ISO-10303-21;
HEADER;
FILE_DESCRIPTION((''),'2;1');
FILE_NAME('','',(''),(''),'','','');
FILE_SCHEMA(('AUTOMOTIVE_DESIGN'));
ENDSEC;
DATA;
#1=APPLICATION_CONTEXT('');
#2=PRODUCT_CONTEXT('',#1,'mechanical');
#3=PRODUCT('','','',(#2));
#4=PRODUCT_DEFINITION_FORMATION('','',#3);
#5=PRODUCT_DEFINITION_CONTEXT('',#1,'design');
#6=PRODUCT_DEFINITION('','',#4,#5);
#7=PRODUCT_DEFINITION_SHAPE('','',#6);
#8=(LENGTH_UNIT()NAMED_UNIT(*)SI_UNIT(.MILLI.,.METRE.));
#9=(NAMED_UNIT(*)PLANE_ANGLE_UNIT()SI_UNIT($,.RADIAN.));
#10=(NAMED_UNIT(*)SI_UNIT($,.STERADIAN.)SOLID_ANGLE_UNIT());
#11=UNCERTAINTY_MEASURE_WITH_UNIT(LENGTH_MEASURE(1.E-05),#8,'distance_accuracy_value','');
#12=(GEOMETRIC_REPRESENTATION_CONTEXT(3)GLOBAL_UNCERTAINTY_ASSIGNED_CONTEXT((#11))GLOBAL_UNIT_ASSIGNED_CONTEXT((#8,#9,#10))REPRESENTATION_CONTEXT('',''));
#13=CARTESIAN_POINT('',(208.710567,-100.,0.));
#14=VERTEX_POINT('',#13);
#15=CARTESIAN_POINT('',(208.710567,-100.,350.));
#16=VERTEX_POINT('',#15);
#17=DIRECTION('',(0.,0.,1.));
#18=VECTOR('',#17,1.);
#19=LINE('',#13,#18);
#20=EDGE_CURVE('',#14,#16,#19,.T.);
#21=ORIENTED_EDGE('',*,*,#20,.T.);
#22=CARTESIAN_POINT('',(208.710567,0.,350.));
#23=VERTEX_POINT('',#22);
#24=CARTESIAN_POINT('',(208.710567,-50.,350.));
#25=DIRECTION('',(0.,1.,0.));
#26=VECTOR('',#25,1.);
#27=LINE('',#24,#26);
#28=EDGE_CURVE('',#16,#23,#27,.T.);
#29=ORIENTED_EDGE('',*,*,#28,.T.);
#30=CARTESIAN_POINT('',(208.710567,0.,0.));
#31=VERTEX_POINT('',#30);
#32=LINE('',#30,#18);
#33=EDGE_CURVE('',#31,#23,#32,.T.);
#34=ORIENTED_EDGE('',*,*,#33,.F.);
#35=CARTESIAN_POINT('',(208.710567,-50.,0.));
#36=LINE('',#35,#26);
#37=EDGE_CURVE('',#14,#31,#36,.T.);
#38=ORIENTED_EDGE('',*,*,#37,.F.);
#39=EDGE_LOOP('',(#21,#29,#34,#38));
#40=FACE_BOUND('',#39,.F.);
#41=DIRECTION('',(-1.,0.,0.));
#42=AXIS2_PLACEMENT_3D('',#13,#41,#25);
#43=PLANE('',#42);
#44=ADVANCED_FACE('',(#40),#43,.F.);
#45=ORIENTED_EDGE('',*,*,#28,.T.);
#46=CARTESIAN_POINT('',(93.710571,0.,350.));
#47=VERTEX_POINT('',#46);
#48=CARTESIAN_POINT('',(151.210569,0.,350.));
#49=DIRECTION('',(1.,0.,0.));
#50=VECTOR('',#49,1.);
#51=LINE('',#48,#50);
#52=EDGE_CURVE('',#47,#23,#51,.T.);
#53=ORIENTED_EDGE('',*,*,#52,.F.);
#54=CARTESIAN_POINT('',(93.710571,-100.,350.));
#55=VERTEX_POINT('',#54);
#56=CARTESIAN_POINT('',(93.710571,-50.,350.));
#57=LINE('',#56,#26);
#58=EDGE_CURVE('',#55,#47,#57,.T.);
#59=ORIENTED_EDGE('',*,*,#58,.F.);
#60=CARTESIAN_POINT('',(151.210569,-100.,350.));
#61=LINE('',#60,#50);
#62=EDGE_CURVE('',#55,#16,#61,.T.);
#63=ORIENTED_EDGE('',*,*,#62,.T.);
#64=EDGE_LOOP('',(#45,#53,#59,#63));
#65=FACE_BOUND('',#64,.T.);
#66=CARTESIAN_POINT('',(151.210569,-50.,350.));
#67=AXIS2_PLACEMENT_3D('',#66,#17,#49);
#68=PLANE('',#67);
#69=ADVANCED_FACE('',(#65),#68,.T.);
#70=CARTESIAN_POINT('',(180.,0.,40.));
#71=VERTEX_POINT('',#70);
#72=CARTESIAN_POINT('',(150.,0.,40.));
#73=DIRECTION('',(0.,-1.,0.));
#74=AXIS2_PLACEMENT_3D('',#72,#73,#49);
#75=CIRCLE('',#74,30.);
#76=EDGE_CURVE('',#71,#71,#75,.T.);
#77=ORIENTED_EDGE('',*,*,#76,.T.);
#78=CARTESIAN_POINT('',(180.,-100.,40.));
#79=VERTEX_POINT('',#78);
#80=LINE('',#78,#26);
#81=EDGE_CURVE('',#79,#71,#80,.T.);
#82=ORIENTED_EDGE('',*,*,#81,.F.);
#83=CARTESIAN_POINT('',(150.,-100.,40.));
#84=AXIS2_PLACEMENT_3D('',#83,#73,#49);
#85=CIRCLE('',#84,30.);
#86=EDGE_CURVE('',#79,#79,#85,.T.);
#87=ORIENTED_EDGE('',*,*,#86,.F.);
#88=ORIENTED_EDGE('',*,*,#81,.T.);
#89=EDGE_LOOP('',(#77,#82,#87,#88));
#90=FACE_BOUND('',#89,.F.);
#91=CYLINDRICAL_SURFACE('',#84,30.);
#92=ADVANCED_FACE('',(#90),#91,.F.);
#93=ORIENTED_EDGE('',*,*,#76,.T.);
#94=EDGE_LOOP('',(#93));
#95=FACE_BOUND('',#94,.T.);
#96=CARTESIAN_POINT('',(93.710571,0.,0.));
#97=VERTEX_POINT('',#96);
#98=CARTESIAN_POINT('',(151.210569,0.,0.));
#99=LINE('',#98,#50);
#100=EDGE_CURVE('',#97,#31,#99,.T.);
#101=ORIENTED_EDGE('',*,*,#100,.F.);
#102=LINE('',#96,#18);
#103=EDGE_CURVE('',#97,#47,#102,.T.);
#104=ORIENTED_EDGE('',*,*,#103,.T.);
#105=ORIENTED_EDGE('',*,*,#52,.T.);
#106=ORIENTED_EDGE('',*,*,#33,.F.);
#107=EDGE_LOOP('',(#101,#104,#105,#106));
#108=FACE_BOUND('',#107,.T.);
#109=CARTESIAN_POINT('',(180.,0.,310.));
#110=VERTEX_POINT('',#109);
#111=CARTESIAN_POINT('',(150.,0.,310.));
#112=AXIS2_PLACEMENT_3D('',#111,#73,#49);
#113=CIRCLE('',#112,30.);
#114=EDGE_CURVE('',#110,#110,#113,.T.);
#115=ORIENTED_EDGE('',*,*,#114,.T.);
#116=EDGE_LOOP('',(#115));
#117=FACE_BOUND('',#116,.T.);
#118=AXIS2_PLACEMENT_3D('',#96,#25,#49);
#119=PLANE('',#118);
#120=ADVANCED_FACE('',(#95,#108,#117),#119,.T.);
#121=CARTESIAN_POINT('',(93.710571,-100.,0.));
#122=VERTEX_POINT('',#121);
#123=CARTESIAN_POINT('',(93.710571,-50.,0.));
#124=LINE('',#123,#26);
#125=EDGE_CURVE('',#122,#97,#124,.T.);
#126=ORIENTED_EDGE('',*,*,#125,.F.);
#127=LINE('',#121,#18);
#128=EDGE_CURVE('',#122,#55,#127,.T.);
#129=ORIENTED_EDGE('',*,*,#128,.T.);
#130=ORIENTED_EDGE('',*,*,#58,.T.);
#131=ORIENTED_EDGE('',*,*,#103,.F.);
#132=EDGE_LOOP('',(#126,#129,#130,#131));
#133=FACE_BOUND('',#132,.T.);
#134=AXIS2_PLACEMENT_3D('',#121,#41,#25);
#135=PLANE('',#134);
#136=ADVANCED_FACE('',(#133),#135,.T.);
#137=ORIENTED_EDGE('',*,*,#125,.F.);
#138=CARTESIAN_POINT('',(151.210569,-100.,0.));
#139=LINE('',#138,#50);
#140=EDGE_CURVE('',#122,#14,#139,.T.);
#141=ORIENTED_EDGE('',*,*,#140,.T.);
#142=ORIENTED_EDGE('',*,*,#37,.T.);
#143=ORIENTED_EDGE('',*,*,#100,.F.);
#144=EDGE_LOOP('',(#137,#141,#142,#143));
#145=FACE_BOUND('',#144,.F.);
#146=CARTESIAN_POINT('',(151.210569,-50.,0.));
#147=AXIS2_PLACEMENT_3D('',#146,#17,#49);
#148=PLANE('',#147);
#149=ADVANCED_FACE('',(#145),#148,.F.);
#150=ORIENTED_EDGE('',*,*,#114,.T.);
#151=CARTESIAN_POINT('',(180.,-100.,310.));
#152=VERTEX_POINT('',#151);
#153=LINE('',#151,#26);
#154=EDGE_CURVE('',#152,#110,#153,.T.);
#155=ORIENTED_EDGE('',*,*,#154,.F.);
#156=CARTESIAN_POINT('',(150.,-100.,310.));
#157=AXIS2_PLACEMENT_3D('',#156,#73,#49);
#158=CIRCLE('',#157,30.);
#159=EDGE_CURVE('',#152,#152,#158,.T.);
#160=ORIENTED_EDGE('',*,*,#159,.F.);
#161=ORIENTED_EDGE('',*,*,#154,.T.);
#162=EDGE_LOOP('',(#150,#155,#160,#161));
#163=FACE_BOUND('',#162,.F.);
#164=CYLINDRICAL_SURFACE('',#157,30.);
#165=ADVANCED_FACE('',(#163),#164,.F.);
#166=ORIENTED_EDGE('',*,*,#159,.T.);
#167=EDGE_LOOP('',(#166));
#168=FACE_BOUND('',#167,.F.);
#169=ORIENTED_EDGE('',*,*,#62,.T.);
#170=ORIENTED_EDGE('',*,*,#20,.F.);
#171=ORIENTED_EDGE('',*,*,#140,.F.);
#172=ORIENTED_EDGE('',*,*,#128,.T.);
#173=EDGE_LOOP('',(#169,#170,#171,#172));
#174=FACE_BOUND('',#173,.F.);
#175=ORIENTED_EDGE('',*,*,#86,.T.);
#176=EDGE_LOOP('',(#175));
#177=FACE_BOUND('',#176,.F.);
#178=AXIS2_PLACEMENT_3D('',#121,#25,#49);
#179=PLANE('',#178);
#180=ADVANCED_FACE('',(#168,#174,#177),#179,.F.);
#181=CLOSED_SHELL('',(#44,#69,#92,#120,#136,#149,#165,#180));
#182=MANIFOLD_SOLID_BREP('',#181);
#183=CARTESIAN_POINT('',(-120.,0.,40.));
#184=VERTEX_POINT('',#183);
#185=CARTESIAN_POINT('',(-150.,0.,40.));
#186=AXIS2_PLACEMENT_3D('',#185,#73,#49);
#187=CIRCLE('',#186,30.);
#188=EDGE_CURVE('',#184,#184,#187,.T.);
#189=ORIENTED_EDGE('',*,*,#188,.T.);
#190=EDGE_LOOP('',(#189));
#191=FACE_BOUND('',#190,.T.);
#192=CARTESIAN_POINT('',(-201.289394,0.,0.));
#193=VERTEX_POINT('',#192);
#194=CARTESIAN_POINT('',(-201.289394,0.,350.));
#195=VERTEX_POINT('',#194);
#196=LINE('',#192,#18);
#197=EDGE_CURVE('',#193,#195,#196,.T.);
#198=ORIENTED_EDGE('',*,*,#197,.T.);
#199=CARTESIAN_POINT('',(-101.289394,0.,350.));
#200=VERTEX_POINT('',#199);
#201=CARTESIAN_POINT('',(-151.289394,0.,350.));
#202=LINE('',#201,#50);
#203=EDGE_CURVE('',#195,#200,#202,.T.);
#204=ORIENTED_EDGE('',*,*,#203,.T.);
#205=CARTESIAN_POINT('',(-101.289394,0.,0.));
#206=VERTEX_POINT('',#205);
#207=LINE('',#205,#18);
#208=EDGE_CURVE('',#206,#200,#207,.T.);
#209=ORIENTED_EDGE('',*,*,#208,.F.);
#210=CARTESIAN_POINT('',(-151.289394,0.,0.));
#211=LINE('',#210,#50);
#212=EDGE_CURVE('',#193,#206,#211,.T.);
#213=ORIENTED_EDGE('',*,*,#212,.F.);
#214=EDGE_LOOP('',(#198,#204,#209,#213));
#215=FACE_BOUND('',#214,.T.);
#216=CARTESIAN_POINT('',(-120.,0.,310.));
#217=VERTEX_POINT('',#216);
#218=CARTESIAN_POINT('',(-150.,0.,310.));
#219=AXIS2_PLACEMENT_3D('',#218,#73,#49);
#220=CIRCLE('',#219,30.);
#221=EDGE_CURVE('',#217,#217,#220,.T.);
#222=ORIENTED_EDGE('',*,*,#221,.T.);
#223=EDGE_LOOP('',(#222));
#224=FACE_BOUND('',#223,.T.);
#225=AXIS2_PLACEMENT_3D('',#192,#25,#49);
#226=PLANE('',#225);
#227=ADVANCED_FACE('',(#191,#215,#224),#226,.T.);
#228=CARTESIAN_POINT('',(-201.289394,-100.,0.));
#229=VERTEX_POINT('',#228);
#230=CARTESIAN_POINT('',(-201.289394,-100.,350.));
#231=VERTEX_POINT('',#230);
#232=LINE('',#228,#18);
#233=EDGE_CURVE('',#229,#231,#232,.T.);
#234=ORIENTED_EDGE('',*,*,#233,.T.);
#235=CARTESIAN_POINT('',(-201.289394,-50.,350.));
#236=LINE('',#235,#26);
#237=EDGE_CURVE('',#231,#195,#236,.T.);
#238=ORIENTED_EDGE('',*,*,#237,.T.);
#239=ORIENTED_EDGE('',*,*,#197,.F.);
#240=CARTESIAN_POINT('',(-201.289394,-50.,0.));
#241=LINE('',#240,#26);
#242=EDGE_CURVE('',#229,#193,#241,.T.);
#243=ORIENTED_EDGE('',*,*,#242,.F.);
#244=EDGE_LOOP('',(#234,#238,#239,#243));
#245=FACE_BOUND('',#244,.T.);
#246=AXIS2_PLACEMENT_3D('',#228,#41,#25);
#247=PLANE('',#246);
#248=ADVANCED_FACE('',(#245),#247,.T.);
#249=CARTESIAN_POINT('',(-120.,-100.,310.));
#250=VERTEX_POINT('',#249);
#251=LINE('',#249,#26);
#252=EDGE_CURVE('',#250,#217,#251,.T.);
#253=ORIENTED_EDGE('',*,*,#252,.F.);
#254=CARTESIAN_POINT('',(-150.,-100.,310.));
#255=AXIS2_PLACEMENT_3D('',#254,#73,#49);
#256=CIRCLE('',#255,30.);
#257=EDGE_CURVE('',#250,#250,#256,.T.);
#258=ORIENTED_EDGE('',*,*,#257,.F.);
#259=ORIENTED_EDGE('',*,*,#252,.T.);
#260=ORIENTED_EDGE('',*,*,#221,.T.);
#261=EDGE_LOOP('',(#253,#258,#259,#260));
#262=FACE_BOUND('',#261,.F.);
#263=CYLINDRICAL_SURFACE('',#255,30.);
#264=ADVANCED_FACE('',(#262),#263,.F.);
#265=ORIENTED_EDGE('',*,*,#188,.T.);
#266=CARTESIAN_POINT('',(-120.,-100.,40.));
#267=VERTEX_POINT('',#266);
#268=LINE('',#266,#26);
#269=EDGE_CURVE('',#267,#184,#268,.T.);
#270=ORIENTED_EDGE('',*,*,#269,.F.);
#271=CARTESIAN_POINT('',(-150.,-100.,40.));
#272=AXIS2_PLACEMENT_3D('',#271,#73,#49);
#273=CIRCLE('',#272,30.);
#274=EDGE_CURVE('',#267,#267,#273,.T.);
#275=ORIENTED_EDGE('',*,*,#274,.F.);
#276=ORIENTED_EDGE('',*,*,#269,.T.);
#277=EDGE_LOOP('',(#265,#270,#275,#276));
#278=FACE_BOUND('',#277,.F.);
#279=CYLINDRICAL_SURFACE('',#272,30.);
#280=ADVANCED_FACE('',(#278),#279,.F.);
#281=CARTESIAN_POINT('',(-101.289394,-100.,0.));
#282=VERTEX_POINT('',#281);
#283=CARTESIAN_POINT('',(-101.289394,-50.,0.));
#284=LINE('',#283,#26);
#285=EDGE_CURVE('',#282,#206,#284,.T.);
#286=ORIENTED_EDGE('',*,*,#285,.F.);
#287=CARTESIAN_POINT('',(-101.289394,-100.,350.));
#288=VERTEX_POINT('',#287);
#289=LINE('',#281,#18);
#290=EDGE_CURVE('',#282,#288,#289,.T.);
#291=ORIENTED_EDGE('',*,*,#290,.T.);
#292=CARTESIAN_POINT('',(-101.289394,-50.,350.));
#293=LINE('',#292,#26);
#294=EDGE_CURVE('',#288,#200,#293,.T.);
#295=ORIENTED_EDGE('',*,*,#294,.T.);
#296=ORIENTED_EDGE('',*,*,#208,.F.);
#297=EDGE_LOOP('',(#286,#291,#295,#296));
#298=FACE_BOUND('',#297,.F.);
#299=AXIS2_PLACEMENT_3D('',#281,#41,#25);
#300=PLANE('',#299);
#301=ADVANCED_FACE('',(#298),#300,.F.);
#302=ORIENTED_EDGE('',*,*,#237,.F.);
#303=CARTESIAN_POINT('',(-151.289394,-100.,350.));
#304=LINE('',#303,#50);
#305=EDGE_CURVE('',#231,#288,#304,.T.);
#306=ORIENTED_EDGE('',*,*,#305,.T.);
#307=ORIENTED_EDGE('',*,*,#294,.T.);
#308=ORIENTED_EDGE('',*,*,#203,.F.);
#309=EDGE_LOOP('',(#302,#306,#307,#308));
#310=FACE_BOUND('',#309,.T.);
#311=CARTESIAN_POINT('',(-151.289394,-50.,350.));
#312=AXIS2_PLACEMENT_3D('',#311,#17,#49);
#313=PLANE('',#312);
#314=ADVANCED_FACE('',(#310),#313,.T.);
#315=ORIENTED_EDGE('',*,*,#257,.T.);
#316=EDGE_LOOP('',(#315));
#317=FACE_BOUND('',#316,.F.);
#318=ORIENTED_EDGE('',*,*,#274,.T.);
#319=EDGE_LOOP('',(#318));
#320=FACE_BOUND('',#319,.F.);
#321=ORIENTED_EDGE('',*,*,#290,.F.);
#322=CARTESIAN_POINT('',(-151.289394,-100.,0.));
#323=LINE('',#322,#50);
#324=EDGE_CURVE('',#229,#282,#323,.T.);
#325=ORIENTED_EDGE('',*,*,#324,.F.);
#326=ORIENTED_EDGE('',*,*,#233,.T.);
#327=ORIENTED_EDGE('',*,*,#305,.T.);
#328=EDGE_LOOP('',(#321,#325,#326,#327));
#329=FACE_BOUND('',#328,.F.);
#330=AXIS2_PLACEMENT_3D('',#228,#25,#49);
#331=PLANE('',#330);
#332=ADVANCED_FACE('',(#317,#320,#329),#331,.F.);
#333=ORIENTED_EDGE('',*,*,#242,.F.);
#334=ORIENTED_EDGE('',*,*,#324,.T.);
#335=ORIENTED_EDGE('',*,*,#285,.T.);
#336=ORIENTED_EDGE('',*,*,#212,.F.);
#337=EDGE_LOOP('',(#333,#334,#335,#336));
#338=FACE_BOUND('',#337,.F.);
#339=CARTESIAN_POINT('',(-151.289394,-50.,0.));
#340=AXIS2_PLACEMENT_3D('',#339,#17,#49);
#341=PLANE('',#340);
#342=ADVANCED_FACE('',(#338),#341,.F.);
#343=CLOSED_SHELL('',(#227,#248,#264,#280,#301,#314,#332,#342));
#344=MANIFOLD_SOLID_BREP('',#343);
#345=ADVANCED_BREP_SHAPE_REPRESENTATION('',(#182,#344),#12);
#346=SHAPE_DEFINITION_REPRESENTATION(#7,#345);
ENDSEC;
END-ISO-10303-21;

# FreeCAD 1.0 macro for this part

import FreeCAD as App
import Part
import Sketcher

V = App.Vector


def add_polygon(sketch, points):
    """Adds a closed chain of lines whose ends are joined by coincident constraints."""
    first, n = sketch.GeometryCount, len(points)
    for a, b in zip(points, points[1:] + points[:1]):
        sketch.addGeometry(Part.LineSegment(App.Vector(*a, 0), App.Vector(*b, 0)), False)
    for i in range(n):
        sketch.addConstraint(Sketcher.Constraint("Coincident", first + i, 2, first + (i + 1) % n, 1))

doc = App.newDocument("Part")
body = doc.addObject("PartDesign::Body", "Body")
body.AllowCompound = True

sketch1 = body.newObject("Sketcher::SketchObject", "Sketch")
sketch1.AttachmentSupport = (doc.getObject("XY_Plane"), [""])
sketch1.MapMode = "FlatFace"
add_polygon(sketch1, [(-201, 0), (-201, -100), (-101, -100), (-101, 0)])
add_polygon(sketch1, [(94, 0), (94, -100), (209, -100), (209, 0)])
sketch1.addConstraint([
    Sketcher.Constraint("Vertical", 0),
    Sketcher.Constraint("Horizontal", 1),
    Sketcher.Constraint("Vertical", 2),
    Sketcher.Constraint("Horizontal", 3),
    Sketcher.Constraint("Vertical", 4),
    Sketcher.Constraint("Horizontal", 5),
    Sketcher.Constraint("Vertical", 6),
    Sketcher.Constraint("Horizontal", 7),
    Sketcher.Constraint("PointOnObject", 2, 2, -1),
    Sketcher.Constraint("PointOnObject", 6, 2, -1),
    Sketcher.Constraint("Horizontal", 1, 2, 4, 2),
    Sketcher.Constraint("Equal", 3, 0),
    Sketcher.Constraint("DistanceX", 1, 1, 1, 2, 100.0),
    Sketcher.Constraint("DistanceX", 5, 1, 5, 2, 114.999997),
    Sketcher.Constraint("DistanceX", -1, 1, 4, 2, 93.710571),
    Sketcher.Constraint("DistanceX", 1, 2, 5, 2, 309.999961),
])
pad1 = body.newObject("PartDesign::Pad", "Pad")
pad1.Profile = sketch1
pad1.Length = 350

sketch2 = body.newObject("Sketcher::SketchObject", "Sketch001")
sketch2.AttachmentSupport = (doc.getObject("XZ_Plane"), [""])
sketch2.MapMode = "FlatFace"
sketch2.AttachmentOffset = App.Placement(V(0, 0, 100), App.Rotation())
sketch2.addGeometry(Part.Circle(V(-150, 310, 0), V(0, 0, 1), 30), False)
sketch2.addConstraint([
    Sketcher.Constraint("Diameter", 0, 60.0),
    Sketcher.Constraint("DistanceX", 0, 3, -1, 1, 150.0),
    Sketcher.Constraint("DistanceY", -1, 1, 0, 3, 310.0),
])
pocket1 = body.newObject("PartDesign::Pocket", "Pocket")
pocket1.Profile = sketch2
pocket1.Length = 200

sketch3 = body.newObject("Sketcher::SketchObject", "Sketch002")
sketch3.AttachmentSupport = (doc.getObject("XZ_Plane"), [""])
sketch3.MapMode = "FlatFace"
sketch3.AttachmentOffset = App.Placement(V(0, 0, 100), App.Rotation())
sketch3.addGeometry(Part.Circle(V(150, 310, 0), V(0, 0, 1), 30), False)
sketch3.addConstraint([
    Sketcher.Constraint("Diameter", 0, 60.0),
    Sketcher.Constraint("DistanceX", -1, 1, 0, 3, 150.0),
    Sketcher.Constraint("DistanceY", -1, 1, 0, 3, 310.0),
])
pocket2 = body.newObject("PartDesign::Pocket", "Pocket001")
pocket2.Profile = sketch3
pocket2.Length = 200

sketch4 = body.newObject("Sketcher::SketchObject", "Sketch003")
sketch4.AttachmentSupport = (doc.getObject("XZ_Plane"), [""])
sketch4.MapMode = "FlatFace"
sketch4.AttachmentOffset = App.Placement(V(0, 0, 100), App.Rotation())
sketch4.addGeometry(Part.Circle(V(-150, 40, 0), V(0, 0, 1), 30), False)
sketch4.addConstraint([
    Sketcher.Constraint("Diameter", 0, 60.0),
    Sketcher.Constraint("DistanceX", 0, 3, -1, 1, 150.0),
    Sketcher.Constraint("DistanceY", -1, 1, 0, 3, 40.0),
])
pocket3 = body.newObject("PartDesign::Pocket", "Pocket002")
pocket3.Profile = sketch4
pocket3.Length = 200

sketch5 = body.newObject("Sketcher::SketchObject", "Sketch004")
sketch5.AttachmentSupport = (doc.getObject("XZ_Plane"), [""])
sketch5.MapMode = "FlatFace"
sketch5.AttachmentOffset = App.Placement(V(0, 0, 100), App.Rotation())
sketch5.addGeometry(Part.Circle(V(150, 40, 0), V(0, 0, 1), 30), False)
sketch5.addConstraint([
    Sketcher.Constraint("Diameter", 0, 60.0),
    Sketcher.Constraint("DistanceX", -1, 1, 0, 3, 150.0),
    Sketcher.Constraint("DistanceY", -1, 1, 0, 3, 40.0),
])
pocket4 = body.newObject("PartDesign::Pocket", "Pocket003")
pocket4.Profile = sketch5
pocket4.Length = 200

doc.recompute()
